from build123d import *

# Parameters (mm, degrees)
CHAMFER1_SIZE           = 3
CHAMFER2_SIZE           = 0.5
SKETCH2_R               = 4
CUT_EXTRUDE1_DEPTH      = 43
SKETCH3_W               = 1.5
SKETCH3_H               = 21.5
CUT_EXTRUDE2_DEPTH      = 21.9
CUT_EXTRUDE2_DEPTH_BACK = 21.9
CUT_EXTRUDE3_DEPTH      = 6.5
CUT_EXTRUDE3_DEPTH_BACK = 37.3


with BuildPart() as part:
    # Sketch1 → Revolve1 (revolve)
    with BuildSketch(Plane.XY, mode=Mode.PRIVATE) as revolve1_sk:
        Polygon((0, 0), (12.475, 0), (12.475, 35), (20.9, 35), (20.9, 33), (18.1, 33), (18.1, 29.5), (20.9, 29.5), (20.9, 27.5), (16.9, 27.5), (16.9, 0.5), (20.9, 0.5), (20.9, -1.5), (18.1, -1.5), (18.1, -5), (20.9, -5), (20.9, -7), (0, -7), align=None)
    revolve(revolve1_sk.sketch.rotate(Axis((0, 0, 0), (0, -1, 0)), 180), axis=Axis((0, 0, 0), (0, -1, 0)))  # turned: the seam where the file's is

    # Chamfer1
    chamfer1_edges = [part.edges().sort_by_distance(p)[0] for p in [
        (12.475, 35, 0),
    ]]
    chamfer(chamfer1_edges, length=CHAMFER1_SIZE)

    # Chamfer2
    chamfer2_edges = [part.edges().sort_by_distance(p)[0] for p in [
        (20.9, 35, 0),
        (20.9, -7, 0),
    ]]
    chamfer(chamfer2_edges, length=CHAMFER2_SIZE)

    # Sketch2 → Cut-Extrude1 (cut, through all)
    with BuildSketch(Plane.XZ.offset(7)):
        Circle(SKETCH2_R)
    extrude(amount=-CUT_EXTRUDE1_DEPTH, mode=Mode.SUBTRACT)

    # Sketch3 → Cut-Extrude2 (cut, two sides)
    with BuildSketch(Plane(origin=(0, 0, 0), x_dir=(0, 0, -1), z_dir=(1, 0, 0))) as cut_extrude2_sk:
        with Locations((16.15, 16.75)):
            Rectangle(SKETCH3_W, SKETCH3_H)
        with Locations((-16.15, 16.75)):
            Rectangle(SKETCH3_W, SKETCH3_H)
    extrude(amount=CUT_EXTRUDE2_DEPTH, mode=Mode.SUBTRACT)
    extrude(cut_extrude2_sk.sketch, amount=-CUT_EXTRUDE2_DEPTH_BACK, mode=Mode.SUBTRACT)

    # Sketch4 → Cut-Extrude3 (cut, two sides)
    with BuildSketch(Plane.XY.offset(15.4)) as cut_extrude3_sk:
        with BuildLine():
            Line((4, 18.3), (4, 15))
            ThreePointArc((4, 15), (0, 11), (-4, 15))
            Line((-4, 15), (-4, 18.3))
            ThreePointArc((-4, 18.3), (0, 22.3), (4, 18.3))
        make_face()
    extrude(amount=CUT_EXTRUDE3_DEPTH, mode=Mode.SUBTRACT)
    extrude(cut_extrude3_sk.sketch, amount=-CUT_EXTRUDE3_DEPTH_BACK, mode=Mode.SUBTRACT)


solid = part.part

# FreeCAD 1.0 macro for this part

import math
import FreeCAD as App
import Part
import Sketcher

V = App.Vector


def edges_at(feature, points):
    """Names of the edges that pass closest to the given points."""
    edges = feature.Shape.Edges
    near = lambda p: min(range(len(edges)), key=lambda i: edges[i].distToShape(Part.Vertex(*p))[0])
    return sorted({f"Edge{near(p) + 1}" for p in points})


def add_polygon(sketch, points):
    """Adds a closed chain of lines whose ends are joined by coincident constraints."""
    first, n = sketch.GeometryCount, len(points)
    for a, b in zip(points, points[1:] + points[:1]):
        sketch.addGeometry(Part.LineSegment(App.Vector(*a, 0), App.Vector(*b, 0)), False)
    for i in range(n):
        sketch.addConstraint(Sketcher.Constraint("Coincident", first + i, 2, first + (i + 1) % n, 1))

doc = App.newDocument("Part")
body = doc.addObject("PartDesign::Body", "Body")

# Sketch on XY plane
sketch1 = doc.addObject("Sketcher::SketchObject", "Sketch")
body.addObject(sketch1)
sketch1.AttachmentSupport = (doc.XY_Plane, [""])
sketch1.MapMode = "FlatFace"
add_polygon(sketch1, [(12.5, 0), (0, 0), (0, -7), (20.9, -7), (20.9, -5), (18.1, -5), (18.1, -1.5), (20.9, -1.5), (20.9, 0.5), (16.9, 0.5), (16.9, 27.5), (20.9, 27.5), (20.9, 29.5), (18.1, 29.5), (18.1, 33), (20.9, 33), (20.9, 35), (12.5, 35)])  # lines 0-17
sketch1.addConstraint([
    Sketcher.Constraint("Horizontal", 0),
    Sketcher.Constraint("Vertical", 1),
    Sketcher.Constraint("Horizontal", 2),
    Sketcher.Constraint("Vertical", 3),
    Sketcher.Constraint("Horizontal", 4),
    Sketcher.Constraint("Vertical", 5),
    Sketcher.Constraint("Horizontal", 6),
    Sketcher.Constraint("Vertical", 7),
    Sketcher.Constraint("Horizontal", 8),
    Sketcher.Constraint("Vertical", 9),
    Sketcher.Constraint("Horizontal", 10),
    Sketcher.Constraint("Vertical", 11),
    Sketcher.Constraint("Horizontal", 12),
    Sketcher.Constraint("Vertical", 13),
    Sketcher.Constraint("Horizontal", 14),
    Sketcher.Constraint("Vertical", 15),
    Sketcher.Constraint("Horizontal", 16),
    Sketcher.Constraint("Vertical", 17),
    Sketcher.Constraint("Coincident", 0, 2, -1, 1),
    Sketcher.Constraint("Vertical", 3, 2, 6, 2),
    Sketcher.Constraint("Vertical", 7, 2, 10, 2),
    Sketcher.Constraint("Vertical", 5, 2, 12, 2),
    Sketcher.Constraint("Vertical", 11, 2, 14, 2),
    Sketcher.Constraint("Equal", 3, 7),
    Sketcher.Constraint("Equal", 7, 11),
    Sketcher.Constraint("Equal", 5, 13),
    Sketcher.Constraint("Equal", 11, 15),
    Sketcher.Constraint("DistanceX", 8, 2, 8, 1, 4.0),
    Sketcher.Constraint("DistanceY", 1, 2, 1, 1, 7.0),
    Sketcher.Constraint("DistanceY", 3, 1, 3, 2, 2.0),
    Sketcher.Constraint("DistanceY", 9, 1, 9, 2, 27.0),
    Sketcher.Constraint("DistanceY", 17, 2, 17, 1, 35.0),
    Sketcher.Constraint("DistanceX", 2, 1, 2, 2, 20.9),
    Sketcher.Constraint("DistanceX", 4, 2, 4, 1, 2.8),
    Sketcher.Constraint("DistanceX", 0, 2, 0, 1, 12.475),
])
revolution = doc.addObject("PartDesign::Revolution", "Revolution")
body.addObject(revolution)
revolution.Profile = sketch1
revolution.ReferenceAxis = (sketch1, ["V_Axis"])
revolution.Angle = 360
doc.recompute()

chamfer = doc.addObject("PartDesign::Chamfer", "Chamfer")
body.addObject(chamfer)
chamfer.Base = (revolution, edges_at(revolution, [(12.475, 35, 0)]))
chamfer.Size = 3
doc.recompute()

chamfer2 = doc.addObject("PartDesign::Chamfer", "Chamfer001")
body.addObject(chamfer2)
chamfer2.Base = (chamfer, edges_at(chamfer, [(20.9, 35, 0), (20.9, -7, 0)]))
chamfer2.Size = 0.5

# Sketch on XZ plane
sketch2 = doc.addObject("Sketcher::SketchObject", "Sketch001")
body.addObject(sketch2)
sketch2.AttachmentSupport = (doc.XZ_Plane, [""])
sketch2.MapMode = "FlatFace"
sketch2.AttachmentOffset = App.Placement(V(0, 0, 7), App.Rotation())
sketch2.addGeometry(Part.Circle(V(0, 0, 0), V(0, 0, 1), 4), False)
sketch2.addConstraint([
    Sketcher.Constraint("Coincident", 0, 3, -1, 1),
    Sketcher.Constraint("Diameter", 0, 8.0),
])
pocket1 = doc.addObject("PartDesign::Pocket", "Pocket")
body.addObject(pocket1)
pocket1.Profile = sketch2
pocket1.Type = "ThroughAll"

# Sketch on YZ plane
sketch3 = doc.addObject("Sketcher::SketchObject", "Sketch002")
body.addObject(sketch3)
sketch3.AttachmentSupport = (doc.YZ_Plane, [""])
sketch3.MapMode = "FlatFace"
add_polygon(sketch3, [(27.5, -15.4), (6, -15.4), (6, -16.9), (27.5, -16.9)])  # lines 0-3
add_polygon(sketch3, [(27.5, 16.9), (6, 16.9), (6, 15.4), (27.5, 15.4)])  # lines 4-7
sketch3.addConstraint([
    Sketcher.Constraint("Horizontal", 0),
    Sketcher.Constraint("Vertical", 1),
    Sketcher.Constraint("Horizontal", 2),
    Sketcher.Constraint("Vertical", 3),
    Sketcher.Constraint("Horizontal", 4),
    Sketcher.Constraint("Vertical", 5),
    Sketcher.Constraint("Horizontal", 6),
    Sketcher.Constraint("Vertical", 7),
    Sketcher.Constraint("Symmetric", 1, 2, 4, 2, -1),
    Sketcher.Constraint("Symmetric", 3, 2, 6, 2, -1),
    Sketcher.Constraint("DistanceX", 0, 2, 0, 1, 21.5),
    Sketcher.Constraint("DistanceY", 1, 2, 1, 1, 1.5),
    Sketcher.Constraint("DistanceX", -1, 1, 0, 2, 6.0),
    Sketcher.Constraint("DistanceY", 0, 2, -1, 1, 15.4),
])
pocket2 = doc.addObject("PartDesign::Pocket", "Pocket001")
body.addObject(pocket2)
pocket2.Profile = sketch3
pocket2.Type = "ThroughAll"
pocket2.Midplane = True

# Sketch on XY plane
sketch4 = doc.addObject("Sketcher::SketchObject", "Sketch003")
body.addObject(sketch4)
sketch4.AttachmentSupport = (doc.XY_Plane, [""])
sketch4.MapMode = "FlatFace"
sketch4.AttachmentOffset = App.Placement(V(0, 0, 15.4), App.Rotation())
sketch4.addGeometry([
    Part.LineSegment(V(4, 15, 0), V(4, 18.3, 0)),
    Part.ArcOfCircle(Part.Circle(V(0, 18.3, 0), V(0, 0, 1), 4), math.radians(0), math.radians(180)),
    Part.LineSegment(V(-4, 18.3, 0), V(-4, 15, 0)),
    Part.ArcOfCircle(Part.Circle(V(0, 15, 0), V(0, 0, 1), 4), math.radians(180), math.radians(360)),
], False)
sketch4.addConstraint([
    Sketcher.Constraint("Tangent", 0, 2, 1, 1),
    Sketcher.Constraint("Tangent", 1, 2, 2, 1),
    Sketcher.Constraint("Tangent", 2, 2, 3, 1),
    Sketcher.Constraint("Tangent", 3, 2, 0, 1),
    Sketcher.Constraint("Vertical", 0),
    Sketcher.Constraint("Vertical", 2),
    Sketcher.Constraint("PointOnObject", 1, 3, -2),
    Sketcher.Constraint("Radius", 1, 4.0),
    Sketcher.Constraint("DistanceY", 0, 1, 0, 2, 3.3),
    Sketcher.Constraint("DistanceY", -1, 1, 3, 3, 15.0),
])
pocket3 = doc.addObject("PartDesign::Pocket", "Pocket002")
body.addObject(pocket3)
pocket3.Profile = sketch4
pocket3.Type = "ThroughAll"
pocket3.Midplane = True

doc.recompute()
